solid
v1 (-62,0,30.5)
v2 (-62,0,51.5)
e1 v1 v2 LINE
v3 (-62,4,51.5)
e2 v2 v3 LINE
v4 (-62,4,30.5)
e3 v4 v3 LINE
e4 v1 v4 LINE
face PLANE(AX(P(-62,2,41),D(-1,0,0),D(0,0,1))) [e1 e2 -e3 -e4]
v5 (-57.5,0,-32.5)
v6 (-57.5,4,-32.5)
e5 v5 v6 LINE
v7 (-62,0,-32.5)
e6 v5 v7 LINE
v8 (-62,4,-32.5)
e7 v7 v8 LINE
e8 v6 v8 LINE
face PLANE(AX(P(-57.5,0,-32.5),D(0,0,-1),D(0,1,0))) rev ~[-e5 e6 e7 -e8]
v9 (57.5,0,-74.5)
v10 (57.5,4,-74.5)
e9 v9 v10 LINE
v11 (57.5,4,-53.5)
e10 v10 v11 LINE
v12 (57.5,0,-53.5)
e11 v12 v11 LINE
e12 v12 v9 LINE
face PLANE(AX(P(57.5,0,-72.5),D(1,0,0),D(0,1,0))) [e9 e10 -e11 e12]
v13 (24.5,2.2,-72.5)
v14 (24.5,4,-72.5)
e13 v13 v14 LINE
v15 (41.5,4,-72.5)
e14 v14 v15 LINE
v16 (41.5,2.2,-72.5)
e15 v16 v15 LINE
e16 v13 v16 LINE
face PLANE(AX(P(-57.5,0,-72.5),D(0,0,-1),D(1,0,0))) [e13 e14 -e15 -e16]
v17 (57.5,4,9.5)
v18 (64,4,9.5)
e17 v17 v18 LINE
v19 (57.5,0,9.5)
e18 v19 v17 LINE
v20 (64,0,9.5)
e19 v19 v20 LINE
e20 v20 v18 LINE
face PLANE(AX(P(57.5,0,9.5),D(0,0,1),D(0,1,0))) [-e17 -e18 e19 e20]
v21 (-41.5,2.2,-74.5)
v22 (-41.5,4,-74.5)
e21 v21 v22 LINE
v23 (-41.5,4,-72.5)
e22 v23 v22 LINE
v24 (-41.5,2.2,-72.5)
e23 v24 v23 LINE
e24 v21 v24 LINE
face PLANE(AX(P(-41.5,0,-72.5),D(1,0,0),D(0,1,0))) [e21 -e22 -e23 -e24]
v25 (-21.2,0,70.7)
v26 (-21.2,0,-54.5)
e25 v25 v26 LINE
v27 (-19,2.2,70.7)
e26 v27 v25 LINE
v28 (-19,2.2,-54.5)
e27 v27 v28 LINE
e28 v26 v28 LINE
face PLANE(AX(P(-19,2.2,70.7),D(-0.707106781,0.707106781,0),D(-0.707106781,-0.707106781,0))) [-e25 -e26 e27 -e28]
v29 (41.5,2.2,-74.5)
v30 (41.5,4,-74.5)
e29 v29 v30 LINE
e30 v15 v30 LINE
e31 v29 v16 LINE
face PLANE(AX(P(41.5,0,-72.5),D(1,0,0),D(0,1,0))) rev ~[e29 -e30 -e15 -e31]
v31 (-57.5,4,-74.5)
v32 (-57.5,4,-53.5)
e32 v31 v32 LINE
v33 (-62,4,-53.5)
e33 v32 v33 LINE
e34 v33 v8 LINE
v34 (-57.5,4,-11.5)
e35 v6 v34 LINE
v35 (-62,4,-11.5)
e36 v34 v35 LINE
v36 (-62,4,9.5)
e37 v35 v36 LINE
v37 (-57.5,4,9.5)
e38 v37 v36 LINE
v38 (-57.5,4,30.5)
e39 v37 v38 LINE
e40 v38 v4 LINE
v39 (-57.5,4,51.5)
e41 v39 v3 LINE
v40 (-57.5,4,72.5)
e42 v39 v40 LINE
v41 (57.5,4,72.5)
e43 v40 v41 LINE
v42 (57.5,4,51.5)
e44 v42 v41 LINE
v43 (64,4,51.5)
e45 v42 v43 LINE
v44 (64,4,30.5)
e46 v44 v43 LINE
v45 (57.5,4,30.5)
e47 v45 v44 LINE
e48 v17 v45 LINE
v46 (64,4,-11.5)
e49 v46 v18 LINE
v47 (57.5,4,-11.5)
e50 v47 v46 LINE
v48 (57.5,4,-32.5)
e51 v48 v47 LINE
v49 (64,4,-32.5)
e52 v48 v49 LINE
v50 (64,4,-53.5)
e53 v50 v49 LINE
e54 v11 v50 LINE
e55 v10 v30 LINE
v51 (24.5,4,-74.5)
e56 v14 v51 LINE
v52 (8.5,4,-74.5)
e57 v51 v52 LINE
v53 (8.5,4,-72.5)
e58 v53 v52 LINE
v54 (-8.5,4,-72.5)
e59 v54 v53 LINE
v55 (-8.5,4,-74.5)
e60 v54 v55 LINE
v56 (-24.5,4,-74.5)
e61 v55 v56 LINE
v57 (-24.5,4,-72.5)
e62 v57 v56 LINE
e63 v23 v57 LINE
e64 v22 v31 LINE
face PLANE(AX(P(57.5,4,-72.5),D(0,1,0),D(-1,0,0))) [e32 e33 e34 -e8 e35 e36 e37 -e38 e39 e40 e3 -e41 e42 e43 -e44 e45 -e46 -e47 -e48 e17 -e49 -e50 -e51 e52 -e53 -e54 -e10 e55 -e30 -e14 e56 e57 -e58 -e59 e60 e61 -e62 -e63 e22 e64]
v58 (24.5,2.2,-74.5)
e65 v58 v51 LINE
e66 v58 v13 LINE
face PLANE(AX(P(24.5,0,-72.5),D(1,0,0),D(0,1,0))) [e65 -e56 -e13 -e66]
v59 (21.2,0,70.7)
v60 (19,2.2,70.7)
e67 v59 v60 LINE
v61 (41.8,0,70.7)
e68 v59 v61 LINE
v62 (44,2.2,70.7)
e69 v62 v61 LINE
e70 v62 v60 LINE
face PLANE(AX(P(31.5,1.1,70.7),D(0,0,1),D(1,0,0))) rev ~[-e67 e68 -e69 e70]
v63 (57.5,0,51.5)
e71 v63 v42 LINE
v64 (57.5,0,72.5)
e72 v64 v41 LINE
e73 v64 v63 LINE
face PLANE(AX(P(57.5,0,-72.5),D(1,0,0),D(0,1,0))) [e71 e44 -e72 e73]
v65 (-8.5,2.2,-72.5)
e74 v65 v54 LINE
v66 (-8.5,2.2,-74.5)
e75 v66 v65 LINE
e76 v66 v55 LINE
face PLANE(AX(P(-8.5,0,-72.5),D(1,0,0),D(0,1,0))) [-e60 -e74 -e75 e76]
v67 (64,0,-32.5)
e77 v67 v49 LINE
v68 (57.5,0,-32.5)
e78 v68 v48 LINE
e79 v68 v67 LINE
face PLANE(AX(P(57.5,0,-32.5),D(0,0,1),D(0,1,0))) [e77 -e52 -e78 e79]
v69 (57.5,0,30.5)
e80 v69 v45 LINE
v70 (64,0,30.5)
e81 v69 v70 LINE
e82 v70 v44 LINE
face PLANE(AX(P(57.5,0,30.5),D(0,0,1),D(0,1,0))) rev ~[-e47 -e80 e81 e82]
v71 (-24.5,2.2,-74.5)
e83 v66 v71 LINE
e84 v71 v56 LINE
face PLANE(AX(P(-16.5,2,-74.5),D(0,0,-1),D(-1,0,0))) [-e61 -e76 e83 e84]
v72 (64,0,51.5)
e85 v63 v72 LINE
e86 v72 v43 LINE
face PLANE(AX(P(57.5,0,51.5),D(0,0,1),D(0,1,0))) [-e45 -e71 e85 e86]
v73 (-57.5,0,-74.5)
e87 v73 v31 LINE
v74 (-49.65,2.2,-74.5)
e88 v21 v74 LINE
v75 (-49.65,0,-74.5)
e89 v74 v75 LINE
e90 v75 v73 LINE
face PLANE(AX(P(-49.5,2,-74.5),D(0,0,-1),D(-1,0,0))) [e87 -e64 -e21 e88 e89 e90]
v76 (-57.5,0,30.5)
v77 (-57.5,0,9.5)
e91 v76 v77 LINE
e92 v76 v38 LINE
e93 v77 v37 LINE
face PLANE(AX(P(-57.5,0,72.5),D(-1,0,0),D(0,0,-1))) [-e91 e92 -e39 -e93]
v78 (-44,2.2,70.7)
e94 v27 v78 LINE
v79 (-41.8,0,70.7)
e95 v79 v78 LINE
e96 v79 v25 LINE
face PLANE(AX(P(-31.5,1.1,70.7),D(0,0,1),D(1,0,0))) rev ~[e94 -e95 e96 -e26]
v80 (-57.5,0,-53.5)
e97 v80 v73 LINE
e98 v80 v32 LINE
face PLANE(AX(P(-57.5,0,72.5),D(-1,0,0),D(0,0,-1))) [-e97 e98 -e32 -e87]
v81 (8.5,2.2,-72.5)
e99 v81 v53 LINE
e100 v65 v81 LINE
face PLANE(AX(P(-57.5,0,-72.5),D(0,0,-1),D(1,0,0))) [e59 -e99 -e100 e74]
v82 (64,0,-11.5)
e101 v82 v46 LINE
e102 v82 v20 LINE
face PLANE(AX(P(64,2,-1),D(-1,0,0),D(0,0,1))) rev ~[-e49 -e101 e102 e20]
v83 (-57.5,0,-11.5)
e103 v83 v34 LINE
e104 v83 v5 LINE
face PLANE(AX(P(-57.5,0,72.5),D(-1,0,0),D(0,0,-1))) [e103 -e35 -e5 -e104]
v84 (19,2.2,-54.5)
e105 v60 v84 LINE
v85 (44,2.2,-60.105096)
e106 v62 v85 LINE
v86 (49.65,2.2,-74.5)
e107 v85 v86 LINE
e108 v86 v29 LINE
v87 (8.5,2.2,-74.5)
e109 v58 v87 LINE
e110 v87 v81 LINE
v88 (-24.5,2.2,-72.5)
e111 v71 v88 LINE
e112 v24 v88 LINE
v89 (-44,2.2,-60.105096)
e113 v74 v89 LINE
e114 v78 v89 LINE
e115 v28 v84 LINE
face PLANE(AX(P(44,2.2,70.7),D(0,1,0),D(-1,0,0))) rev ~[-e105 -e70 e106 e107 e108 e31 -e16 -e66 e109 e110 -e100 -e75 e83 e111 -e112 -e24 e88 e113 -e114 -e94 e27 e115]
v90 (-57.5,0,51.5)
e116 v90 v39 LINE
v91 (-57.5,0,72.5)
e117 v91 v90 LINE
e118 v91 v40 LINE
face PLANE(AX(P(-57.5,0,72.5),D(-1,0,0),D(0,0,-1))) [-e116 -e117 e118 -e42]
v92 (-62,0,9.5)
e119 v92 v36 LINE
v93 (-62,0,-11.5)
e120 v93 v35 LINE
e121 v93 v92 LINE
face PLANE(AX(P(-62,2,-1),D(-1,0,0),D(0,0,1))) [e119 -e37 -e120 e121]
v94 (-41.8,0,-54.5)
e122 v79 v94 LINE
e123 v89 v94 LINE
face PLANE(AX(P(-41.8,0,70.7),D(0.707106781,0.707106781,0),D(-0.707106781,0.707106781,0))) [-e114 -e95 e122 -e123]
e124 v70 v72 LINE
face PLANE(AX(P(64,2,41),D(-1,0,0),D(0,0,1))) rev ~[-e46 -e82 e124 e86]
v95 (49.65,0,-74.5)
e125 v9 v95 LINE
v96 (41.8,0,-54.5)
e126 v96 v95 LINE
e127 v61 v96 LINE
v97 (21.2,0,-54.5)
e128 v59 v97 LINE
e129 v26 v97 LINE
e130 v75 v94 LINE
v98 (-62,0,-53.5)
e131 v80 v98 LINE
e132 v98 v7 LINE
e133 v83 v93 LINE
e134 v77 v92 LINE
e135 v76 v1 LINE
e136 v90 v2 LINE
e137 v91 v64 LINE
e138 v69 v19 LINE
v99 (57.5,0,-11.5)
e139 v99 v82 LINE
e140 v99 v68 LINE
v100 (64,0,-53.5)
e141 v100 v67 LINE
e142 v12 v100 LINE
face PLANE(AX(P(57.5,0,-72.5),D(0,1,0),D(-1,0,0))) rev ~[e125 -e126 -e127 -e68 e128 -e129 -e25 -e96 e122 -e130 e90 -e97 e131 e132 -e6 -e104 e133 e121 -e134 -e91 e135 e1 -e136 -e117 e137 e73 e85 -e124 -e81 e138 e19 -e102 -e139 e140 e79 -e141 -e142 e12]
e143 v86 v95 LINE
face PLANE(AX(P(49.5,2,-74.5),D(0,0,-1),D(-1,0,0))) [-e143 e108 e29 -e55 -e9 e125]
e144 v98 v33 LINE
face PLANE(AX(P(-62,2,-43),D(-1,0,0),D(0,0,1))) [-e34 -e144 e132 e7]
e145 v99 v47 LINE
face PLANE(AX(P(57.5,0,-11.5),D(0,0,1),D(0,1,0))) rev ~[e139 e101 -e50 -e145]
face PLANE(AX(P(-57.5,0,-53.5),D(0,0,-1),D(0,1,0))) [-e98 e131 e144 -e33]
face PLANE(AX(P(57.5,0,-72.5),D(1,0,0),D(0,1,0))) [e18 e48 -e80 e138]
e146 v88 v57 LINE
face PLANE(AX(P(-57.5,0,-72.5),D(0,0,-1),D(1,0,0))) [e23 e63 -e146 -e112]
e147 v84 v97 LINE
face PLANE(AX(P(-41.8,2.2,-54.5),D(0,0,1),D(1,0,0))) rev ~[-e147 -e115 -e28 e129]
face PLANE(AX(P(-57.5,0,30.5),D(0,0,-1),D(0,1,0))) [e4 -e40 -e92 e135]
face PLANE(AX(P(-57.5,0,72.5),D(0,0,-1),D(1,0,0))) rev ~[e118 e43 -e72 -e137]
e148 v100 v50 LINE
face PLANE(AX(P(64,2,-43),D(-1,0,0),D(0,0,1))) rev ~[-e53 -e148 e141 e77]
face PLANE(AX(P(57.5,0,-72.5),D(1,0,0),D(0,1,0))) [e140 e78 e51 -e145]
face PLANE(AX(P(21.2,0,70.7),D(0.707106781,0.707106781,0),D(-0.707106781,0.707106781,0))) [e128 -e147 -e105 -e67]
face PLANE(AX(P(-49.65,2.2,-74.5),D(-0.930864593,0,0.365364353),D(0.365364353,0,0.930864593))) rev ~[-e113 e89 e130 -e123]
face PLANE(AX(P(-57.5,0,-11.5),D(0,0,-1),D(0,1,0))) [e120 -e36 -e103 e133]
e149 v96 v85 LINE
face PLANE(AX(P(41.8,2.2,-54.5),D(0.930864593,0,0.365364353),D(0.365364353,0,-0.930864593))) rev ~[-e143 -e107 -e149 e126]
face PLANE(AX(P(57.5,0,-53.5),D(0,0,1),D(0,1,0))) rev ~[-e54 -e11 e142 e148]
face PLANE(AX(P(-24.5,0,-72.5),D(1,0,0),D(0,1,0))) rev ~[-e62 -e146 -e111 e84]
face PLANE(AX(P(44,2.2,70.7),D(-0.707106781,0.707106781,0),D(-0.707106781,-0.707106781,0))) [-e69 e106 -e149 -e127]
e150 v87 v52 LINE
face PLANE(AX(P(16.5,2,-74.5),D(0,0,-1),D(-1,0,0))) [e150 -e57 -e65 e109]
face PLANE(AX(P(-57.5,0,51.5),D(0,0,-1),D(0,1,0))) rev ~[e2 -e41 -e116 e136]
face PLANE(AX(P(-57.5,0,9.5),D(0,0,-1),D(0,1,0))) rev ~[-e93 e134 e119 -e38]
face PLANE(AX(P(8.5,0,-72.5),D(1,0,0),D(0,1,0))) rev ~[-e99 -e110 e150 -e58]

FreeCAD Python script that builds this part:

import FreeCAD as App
import Part
import Sketcher

V = App.Vector

doc = App.newDocument("Part")
body = doc.addObject("PartDesign::Body", "Body")

# Sketch on XZ plane
sketch1 = body.newObject("Sketcher::SketchObject", "Sketch")
sketch1.AttachmentSupport = (doc.getObject("XZ_Plane"), [""])
sketch1.MapMode = "FlatFace"
sketch1.addGeometry([
    Part.LineSegment(V(-58, -72, 0), V(-58, 72, 0)),
    Part.LineSegment(V(-58, 72, 0), V(58, 72, 0)),
    Part.LineSegment(V(58, 72, 0), V(58, -72, 0)),
    Part.LineSegment(V(58, -72, 0), V(-58, -72, 0)),
], False)
sketch1.addConstraint([
    Sketcher.Constraint("Coincident", 0, 2, 1, 1),
    Sketcher.Constraint("Coincident", 1, 2, 2, 1),
    Sketcher.Constraint("Coincident", 2, 2, 3, 1),
    Sketcher.Constraint("Coincident", 3, 2, 0, 1),
    Sketcher.Constraint("Vertical", 0),
    Sketcher.Constraint("Horizontal", 1),
    Sketcher.Constraint("Vertical", 2),
    Sketcher.Constraint("Horizontal", 3),
    Sketcher.Constraint("Symmetric", 0, 2, 2, 2, -1, 1),
    Sketcher.Constraint("DistanceX", 1, 1, 1, 2, 115.0),
    Sketcher.Constraint("DistanceY", 0, 1, 0, 2, 145.0),
])
pad1 = body.newObject("PartDesign::Pad", "Pad")
pad1.Profile = sketch1
pad1.Length = 4
pad1.Reversed = True

# Sketch on XY plane
sketch2 = body.newObject("Sketcher::SketchObject", "Sketch001")
sketch2.AttachmentSupport = (doc.getObject("XY_Plane"), [""])
sketch2.MapMode = "FlatFace"
sketch2.AttachmentOffset = App.Placement(V(0, 0, -72.5), App.Rotation())
sketch2.addGeometry([
    Part.LineSegment(V(57.5, 4, 0), V(57.5, 0, 0)),  # 0
    Part.LineSegment(V(57.5, 0, 0), V(41.5, 0, 0)),  # 1
    Part.LineSegment(V(41.5, 0, 0), V(41.5, 4, 0)),  # 2
    Part.LineSegment(V(41.5, 4, 0), V(57.5, 4, 0)),  # 3
    Part.LineSegment(V(24.5, 4, 0), V(24.5, 0, 0)),  # 4
    Part.LineSegment(V(24.5, 0, 0), V(8.5, 0, 0)),  # 5
    Part.LineSegment(V(8.5, 0, 0), V(8.5, 4, 0)),  # 6
    Part.LineSegment(V(8.5, 4, 0), V(24.5, 4, 0)),  # 7
    Part.LineSegment(V(-8.5, 4, 0), V(-8.5, 0, 0)),  # 8
    Part.LineSegment(V(-8.5, 0, 0), V(-24.5, 0, 0)),  # 9
    Part.LineSegment(V(-24.5, 0, 0), V(-24.5, 4, 0)),  # 10
    Part.LineSegment(V(-24.5, 4, 0), V(-8.5, 4, 0)),  # 11
    Part.LineSegment(V(-41.5, 4, 0), V(-41.5, 0, 0)),  # 12
    Part.LineSegment(V(-41.5, 0, 0), V(-57.5, 0, 0)),  # 13
    Part.LineSegment(V(-57.5, 0, 0), V(-57.5, 4, 0)),  # 14
    Part.LineSegment(V(-57.5, 4, 0), V(-41.5, 4, 0)),  # 15
], False)
sketch2.addConstraint([
    Sketcher.Constraint("Coincident", 0, 2, 1, 1),
    Sketcher.Constraint("Coincident", 1, 2, 2, 1),
    Sketcher.Constraint("Coincident", 2, 2, 3, 1),
    Sketcher.Constraint("Coincident", 3, 2, 0, 1),
    Sketcher.Constraint("Coincident", 4, 2, 5, 1),
    Sketcher.Constraint("Coincident", 5, 2, 6, 1),
    Sketcher.Constraint("Coincident", 6, 2, 7, 1),
    Sketcher.Constraint("Coincident", 7, 2, 4, 1),
    Sketcher.Constraint("Coincident", 8, 2, 9, 1),
    Sketcher.Constraint("Coincident", 9, 2, 10, 1),
    Sketcher.Constraint("Coincident", 10, 2, 11, 1),
    Sketcher.Constraint("Coincident", 11, 2, 8, 1),
    Sketcher.Constraint("Coincident", 12, 2, 13, 1),
    Sketcher.Constraint("Coincident", 13, 2, 14, 1),
    Sketcher.Constraint("Coincident", 14, 2, 15, 1),
    Sketcher.Constraint("Coincident", 15, 2, 12, 1),
    Sketcher.Constraint("Vertical", 0),
    Sketcher.Constraint("Horizontal", 1),
    Sketcher.Constraint("Vertical", 2),
    Sketcher.Constraint("Horizontal", 3),
    Sketcher.Constraint("Vertical", 4),
    Sketcher.Constraint("Horizontal", 5),
    Sketcher.Constraint("Vertical", 6),
    Sketcher.Constraint("Horizontal", 7),
    Sketcher.Constraint("Vertical", 8),
    Sketcher.Constraint("Horizontal", 9),
    Sketcher.Constraint("Vertical", 10),
    Sketcher.Constraint("Horizontal", 11),
    Sketcher.Constraint("Vertical", 12),
    Sketcher.Constraint("Horizontal", 13),
    Sketcher.Constraint("Vertical", 14),
    Sketcher.Constraint("Horizontal", 15),
    Sketcher.Constraint("Symmetric", 5, 2, 8, 2, -1, 1),
    Sketcher.Constraint("Symmetric", 1, 2, 12, 2, -1, 1),
    Sketcher.Constraint("Symmetric", 4, 2, 9, 2, -2),
    Sketcher.Constraint("Symmetric", 0, 2, 13, 2, -2),
    Sketcher.Constraint("Horizontal", 3, 2, 6, 2),
    Sketcher.Constraint("Horizontal", 7, 2, 10, 2),
    Sketcher.Constraint("Horizontal", 11, 2, 14, 2),
    Sketcher.Constraint("Equal", 3, 5),
    Sketcher.Constraint("DistanceX", 1, 2, 1, 1, 16.0),
    Sketcher.Constraint("DistanceY", 0, 2, 0, 1, 4.0),
    Sketcher.Constraint("DistanceX", 4, 2, 1, 2, 17.0),
    Sketcher.Constraint("DistanceX", 8, 2, 5, 2, 17.0),
])
pad2 = body.newObject("PartDesign::Pad", "Pad001")
pad2.Profile = sketch2
pad2.Length = 2
pad2.Reversed = True

# Sketch on YZ plane
sketch3 = body.newObject("Sketcher::SketchObject", "Sketch002")
sketch3.AttachmentSupport = (doc.getObject("YZ_Plane"), [""])
sketch3.MapMode = "FlatFace"
sketch3.AttachmentOffset = App.Placement(V(0, 0, -57.5), App.Rotation())
sketch3.addGeometry([
    Part.LineSegment(V(4, -53.5, 0), V(0, -53.5, 0)),  # 0
    Part.LineSegment(V(0, -53.5, 0), V(0, -32.5, 0)),  # 1
    Part.LineSegment(V(0, -32.5, 0), V(4, -32.5, 0)),  # 2
    Part.LineSegment(V(4, -32.5, 0), V(4, -53.5, 0)),  # 3
    Part.LineSegment(V(4, -11.5, 0), V(0, -11.5, 0)),  # 4
    Part.LineSegment(V(0, -11.5, 0), V(0, 9.5, 0)),  # 5
    Part.LineSegment(V(0, 9.5, 0), V(4, 9.5, 0)),  # 6
    Part.LineSegment(V(4, 9.5, 0), V(4, -11.5, 0)),  # 7
    Part.LineSegment(V(4, 30.5, 0), V(0, 30.5, 0)),  # 8
    Part.LineSegment(V(0, 30.5, 0), V(0, 51.5, 0)),  # 9
    Part.LineSegment(V(0, 51.5, 0), V(4, 51.5, 0)),  # 10
    Part.LineSegment(V(4, 51.5, 0), V(4, 30.5, 0)),  # 11
], False)
sketch3.addConstraint([
    Sketcher.Constraint("Coincident", 0, 2, 1, 1),
    Sketcher.Constraint("Coincident", 1, 2, 2, 1),
    Sketcher.Constraint("Coincident", 2, 2, 3, 1),
    Sketcher.Constraint("Coincident", 3, 2, 0, 1),
    Sketcher.Constraint("Coincident", 4, 2, 5, 1),
    Sketcher.Constraint("Coincident", 5, 2, 6, 1),
    Sketcher.Constraint("Coincident", 6, 2, 7, 1),
    Sketcher.Constraint("Coincident", 7, 2, 4, 1),
    Sketcher.Constraint("Coincident", 8, 2, 9, 1),
    Sketcher.Constraint("Coincident", 9, 2, 10, 1),
    Sketcher.Constraint("Coincident", 10, 2, 11, 1),
    Sketcher.Constraint("Coincident", 11, 2, 8, 1),
    Sketcher.Constraint("Horizontal", 0),
    Sketcher.Constraint("Vertical", 1),
    Sketcher.Constraint("Horizontal", 2),
    Sketcher.Constraint("Vertical", 3),
    Sketcher.Constraint("Horizontal", 4),
    Sketcher.Constraint("Vertical", 5),
    Sketcher.Constraint("Horizontal", 6),
    Sketcher.Constraint("Vertical", 7),
    Sketcher.Constraint("Horizontal", 8),
    Sketcher.Constraint("Vertical", 9),
    Sketcher.Constraint("Horizontal", 10),
    Sketcher.Constraint("Vertical", 11),
    Sketcher.Constraint("PointOnObject", 0, 2, -2),
    Sketcher.Constraint("PointOnObject", 4, 2, -2),
    Sketcher.Constraint("PointOnObject", 8, 2, -2),
    Sketcher.Constraint("Vertical", 3, 2, 6, 2),
    Sketcher.Constraint("Vertical", 7, 2, 10, 2),
    Sketcher.Constraint("Equal", 3, 5),
    Sketcher.Constraint("Equal", 7, 9),
    Sketcher.Constraint("DistanceX", 0, 2, 0, 1, 4.0),
    Sketcher.Constraint("DistanceY", 1, 1, 1, 2, 21.0),
    Sketcher.Constraint("DistanceY", 1, 2, 4, 2, 21.0),
    Sketcher.Constraint("DistanceY", 5, 2, 8, 2, 21.0),
    Sketcher.Constraint("DistanceY", 0, 2, -1, 1, 53.5),
])
pad3 = body.newObject("PartDesign::Pad", "Pad002")
pad3.Profile = sketch3
pad3.Length = 4.5
pad3.Reversed = True

# Sketch on YZ plane
sketch4 = body.newObject("Sketcher::SketchObject", "Sketch003")
sketch4.AttachmentSupport = (doc.getObject("YZ_Plane"), [""])
sketch4.MapMode = "FlatFace"
sketch4.AttachmentOffset = App.Placement(V(0, 0, 57.5), App.Rotation())
sketch4.addGeometry([
    Part.LineSegment(V(4, -53.5, 0), V(0, -53.5, 0)),  # 0
    Part.LineSegment(V(0, -53.5, 0), V(0, -32.5, 0)),  # 1
    Part.LineSegment(V(0, -32.5, 0), V(4, -32.5, 0)),  # 2
    Part.LineSegment(V(4, -32.5, 0), V(4, -53.5, 0)),  # 3
    Part.LineSegment(V(4, -11.5, 0), V(0, -11.5, 0)),  # 4
    Part.LineSegment(V(0, -11.5, 0), V(0, 9.5, 0)),  # 5
    Part.LineSegment(V(0, 9.5, 0), V(4, 9.5, 0)),  # 6
    Part.LineSegment(V(4, 9.5, 0), V(4, -11.5, 0)),  # 7
    Part.LineSegment(V(4, 30.5, 0), V(0, 30.5, 0)),  # 8
    Part.LineSegment(V(0, 30.5, 0), V(0, 51.5, 0)),  # 9
    Part.LineSegment(V(0, 51.5, 0), V(4, 51.5, 0)),  # 10
    Part.LineSegment(V(4, 51.5, 0), V(4, 30.5, 0)),  # 11
], False)
sketch4.addConstraint([
    Sketcher.Constraint("Coincident", 0, 2, 1, 1),
    Sketcher.Constraint("Coincident", 1, 2, 2, 1),
    Sketcher.Constraint("Coincident", 2, 2, 3, 1),
    Sketcher.Constraint("Coincident", 3, 2, 0, 1),
    Sketcher.Constraint("Coincident", 4, 2, 5, 1),
    Sketcher.Constraint("Coincident", 5, 2, 6, 1),
    Sketcher.Constraint("Coincident", 6, 2, 7, 1),
    Sketcher.Constraint("Coincident", 7, 2, 4, 1),
    Sketcher.Constraint("Coincident", 8, 2, 9, 1),
    Sketcher.Constraint("Coincident", 9, 2, 10, 1),
    Sketcher.Constraint("Coincident", 10, 2, 11, 1),
    Sketcher.Constraint("Coincident", 11, 2, 8, 1),
    Sketcher.Constraint("Horizontal", 0),
    Sketcher.Constraint("Vertical", 1),
    Sketcher.Constraint("Horizontal", 2),
    Sketcher.Constraint("Vertical", 3),
    Sketcher.Constraint("Horizontal", 4),
    Sketcher.Constraint("Vertical", 5),
    Sketcher.Constraint("Horizontal", 6),
    Sketcher.Constraint("Vertical", 7),
    Sketcher.Constraint("Horizontal", 8),
    Sketcher.Constraint("Vertical", 9),
    Sketcher.Constraint("Horizontal", 10),
    Sketcher.Constraint("Vertical", 11),
    Sketcher.Constraint("PointOnObject", 0, 2, -2),
    Sketcher.Constraint("PointOnObject", 4, 2, -2),
    Sketcher.Constraint("PointOnObject", 8, 2, -2),
    Sketcher.Constraint("Vertical", 3, 2, 6, 2),
    Sketcher.Constraint("Vertical", 7, 2, 10, 2),
    Sketcher.Constraint("Equal", 3, 5),
    Sketcher.Constraint("Equal", 7, 9),
    Sketcher.Constraint("DistanceX", 0, 2, 0, 1, 4.0),
    Sketcher.Constraint("DistanceY", 1, 1, 1, 2, 21.0),
    Sketcher.Constraint("DistanceY", 1, 2, 4, 2, 21.0),
    Sketcher.Constraint("DistanceY", 5, 2, 8, 2, 21.0),
    Sketcher.Constraint("DistanceY", 0, 2, -1, 1, 53.5),
])
pad4 = body.newObject("PartDesign::Pad", "Pad003")
pad4.Profile = sketch4
pad4.Length = 6.5

# Sketch on XY plane
sketch5 = body.newObject("Sketcher::SketchObject", "Sketch004")
sketch5.AttachmentSupport = (doc.getObject("XY_Plane"), [""])
sketch5.MapMode = "FlatFace"
sketch5.AttachmentOffset = App.Placement(V(0, 0, 70.7), App.Rotation())
sketch5.addGeometry([
    Part.LineSegment(V(21.2, 0, 0), V(41.8, 0, 0)),  # 0
    Part.LineSegment(V(41.8, 0, 0), V(44, 2.2, 0)),  # 1
    Part.LineSegment(V(44, 2.2, 0), V(19, 2.2, 0)),  # 2
    Part.LineSegment(V(19, 2.2, 0), V(21.2, 0, 0)),  # 3
    Part.LineSegment(V(-41.8, 0, 0), V(-21.2, 0, 0)),  # 4
    Part.LineSegment(V(-21.2, 0, 0), V(-19, 2.2, 0)),  # 5
    Part.LineSegment(V(-19, 2.2, 0), V(-44, 2.2, 0)),  # 6
    Part.LineSegment(V(-44, 2.2, 0), V(-41.8, 0, 0)),  # 7
], False)
sketch5.addConstraint([
    Sketcher.Constraint("Coincident", 0, 2, 1, 1),
    Sketcher.Constraint("Coincident", 1, 2, 2, 1),
    Sketcher.Constraint("Coincident", 2, 2, 3, 1),
    Sketcher.Constraint("Coincident", 3, 2, 0, 1),
    Sketcher.Constraint("Coincident", 4, 2, 5, 1),
    Sketcher.Constraint("Coincident", 5, 2, 6, 1),
    Sketcher.Constraint("Coincident", 6, 2, 7, 1),
    Sketcher.Constraint("Coincident", 7, 2, 4, 1),
    Sketcher.Constraint("Horizontal", 0),
    Sketcher.Constraint("Horizontal", 2),
    Sketcher.Constraint("Horizontal", 4),
    Sketcher.Constraint("Horizontal", 6),
    Sketcher.Constraint("Symmetric", 3, 2, 4, 2, -1, 1),
    Sketcher.Constraint("Symmetric", 2, 2, 5, 2, -2),
    Sketcher.Constraint("Symmetric", 0, 2, 7, 2, -2),
    Sketcher.Constraint("Perpendicular", 1, 3),
    Sketcher.Constraint("Perpendicular", 3, 5),
    Sketcher.Constraint("Perpendicular", 5, 7),
    Sketcher.Constraint("DistanceX", 2, 2, 2, 1, 25.0),
    Sketcher.Constraint("DistanceX", 0, 1, 0, 2, 20.6),
    Sketcher.Constraint("DistanceX", -1, 1, 1, 2, 44.0),
])
pocket1 = body.newObject("PartDesign::Pocket", "Pocket")
pocket1.Profile = sketch5
pocket1.Type = "ThroughAll"

# Sketch on XZ plane
sketch6 = body.newObject("Sketcher::SketchObject", "Sketch005")
sketch6.AttachmentSupport = (doc.getObject("XZ_Plane"), [""])
sketch6.MapMode = "FlatFace"
sketch6.AttachmentOffset = App.Placement(V(0, 0, -2.2), App.Rotation())
sketch6.addGeometry([
    Part.LineSegment(V(-42, -54, 0), V(-50, -74, 0)),
    Part.LineSegment(V(-50, -74, 0), V(50, -74, 0)),
    Part.LineSegment(V(50, -74, 0), V(42, -54, 0)),
    Part.LineSegment(V(42, -54, 0), V(-42, -54, 0)),
], False)
sketch6.addConstraint([
    Sketcher.Constraint("Coincident", 0, 2, 1, 1),
    Sketcher.Constraint("Coincident", 1, 2, 2, 1),
    Sketcher.Constraint("Coincident", 2, 2, 3, 1),
    Sketcher.Constraint("Coincident", 3, 2, 0, 1),
    Sketcher.Constraint("Horizontal", 1),
    Sketcher.Constraint("Horizontal", 3),
    Sketcher.Constraint("Equal", 0, 2),
    Sketcher.Constraint("DistanceX", 1, 1, 1, 2, 99.3),
    Sketcher.Constraint("DistanceX", 3, 2, 3, 1, 83.6),
    Sketcher.Constraint("DistanceY", 1, 2, 2, 2, 20.0),
    Sketcher.Constraint("DistanceY", 0, 2, -1, 1, 74.5),
    Sketcher.Constraint("DistanceX", -1, 1, 2, 2, 41.8),
])
pocket2 = body.newObject("PartDesign::Pocket", "Pocket001")
pocket2.Profile = sketch6
pocket2.Type = "ThroughAll"
pocket2.Reversed = True

doc.recompute()
